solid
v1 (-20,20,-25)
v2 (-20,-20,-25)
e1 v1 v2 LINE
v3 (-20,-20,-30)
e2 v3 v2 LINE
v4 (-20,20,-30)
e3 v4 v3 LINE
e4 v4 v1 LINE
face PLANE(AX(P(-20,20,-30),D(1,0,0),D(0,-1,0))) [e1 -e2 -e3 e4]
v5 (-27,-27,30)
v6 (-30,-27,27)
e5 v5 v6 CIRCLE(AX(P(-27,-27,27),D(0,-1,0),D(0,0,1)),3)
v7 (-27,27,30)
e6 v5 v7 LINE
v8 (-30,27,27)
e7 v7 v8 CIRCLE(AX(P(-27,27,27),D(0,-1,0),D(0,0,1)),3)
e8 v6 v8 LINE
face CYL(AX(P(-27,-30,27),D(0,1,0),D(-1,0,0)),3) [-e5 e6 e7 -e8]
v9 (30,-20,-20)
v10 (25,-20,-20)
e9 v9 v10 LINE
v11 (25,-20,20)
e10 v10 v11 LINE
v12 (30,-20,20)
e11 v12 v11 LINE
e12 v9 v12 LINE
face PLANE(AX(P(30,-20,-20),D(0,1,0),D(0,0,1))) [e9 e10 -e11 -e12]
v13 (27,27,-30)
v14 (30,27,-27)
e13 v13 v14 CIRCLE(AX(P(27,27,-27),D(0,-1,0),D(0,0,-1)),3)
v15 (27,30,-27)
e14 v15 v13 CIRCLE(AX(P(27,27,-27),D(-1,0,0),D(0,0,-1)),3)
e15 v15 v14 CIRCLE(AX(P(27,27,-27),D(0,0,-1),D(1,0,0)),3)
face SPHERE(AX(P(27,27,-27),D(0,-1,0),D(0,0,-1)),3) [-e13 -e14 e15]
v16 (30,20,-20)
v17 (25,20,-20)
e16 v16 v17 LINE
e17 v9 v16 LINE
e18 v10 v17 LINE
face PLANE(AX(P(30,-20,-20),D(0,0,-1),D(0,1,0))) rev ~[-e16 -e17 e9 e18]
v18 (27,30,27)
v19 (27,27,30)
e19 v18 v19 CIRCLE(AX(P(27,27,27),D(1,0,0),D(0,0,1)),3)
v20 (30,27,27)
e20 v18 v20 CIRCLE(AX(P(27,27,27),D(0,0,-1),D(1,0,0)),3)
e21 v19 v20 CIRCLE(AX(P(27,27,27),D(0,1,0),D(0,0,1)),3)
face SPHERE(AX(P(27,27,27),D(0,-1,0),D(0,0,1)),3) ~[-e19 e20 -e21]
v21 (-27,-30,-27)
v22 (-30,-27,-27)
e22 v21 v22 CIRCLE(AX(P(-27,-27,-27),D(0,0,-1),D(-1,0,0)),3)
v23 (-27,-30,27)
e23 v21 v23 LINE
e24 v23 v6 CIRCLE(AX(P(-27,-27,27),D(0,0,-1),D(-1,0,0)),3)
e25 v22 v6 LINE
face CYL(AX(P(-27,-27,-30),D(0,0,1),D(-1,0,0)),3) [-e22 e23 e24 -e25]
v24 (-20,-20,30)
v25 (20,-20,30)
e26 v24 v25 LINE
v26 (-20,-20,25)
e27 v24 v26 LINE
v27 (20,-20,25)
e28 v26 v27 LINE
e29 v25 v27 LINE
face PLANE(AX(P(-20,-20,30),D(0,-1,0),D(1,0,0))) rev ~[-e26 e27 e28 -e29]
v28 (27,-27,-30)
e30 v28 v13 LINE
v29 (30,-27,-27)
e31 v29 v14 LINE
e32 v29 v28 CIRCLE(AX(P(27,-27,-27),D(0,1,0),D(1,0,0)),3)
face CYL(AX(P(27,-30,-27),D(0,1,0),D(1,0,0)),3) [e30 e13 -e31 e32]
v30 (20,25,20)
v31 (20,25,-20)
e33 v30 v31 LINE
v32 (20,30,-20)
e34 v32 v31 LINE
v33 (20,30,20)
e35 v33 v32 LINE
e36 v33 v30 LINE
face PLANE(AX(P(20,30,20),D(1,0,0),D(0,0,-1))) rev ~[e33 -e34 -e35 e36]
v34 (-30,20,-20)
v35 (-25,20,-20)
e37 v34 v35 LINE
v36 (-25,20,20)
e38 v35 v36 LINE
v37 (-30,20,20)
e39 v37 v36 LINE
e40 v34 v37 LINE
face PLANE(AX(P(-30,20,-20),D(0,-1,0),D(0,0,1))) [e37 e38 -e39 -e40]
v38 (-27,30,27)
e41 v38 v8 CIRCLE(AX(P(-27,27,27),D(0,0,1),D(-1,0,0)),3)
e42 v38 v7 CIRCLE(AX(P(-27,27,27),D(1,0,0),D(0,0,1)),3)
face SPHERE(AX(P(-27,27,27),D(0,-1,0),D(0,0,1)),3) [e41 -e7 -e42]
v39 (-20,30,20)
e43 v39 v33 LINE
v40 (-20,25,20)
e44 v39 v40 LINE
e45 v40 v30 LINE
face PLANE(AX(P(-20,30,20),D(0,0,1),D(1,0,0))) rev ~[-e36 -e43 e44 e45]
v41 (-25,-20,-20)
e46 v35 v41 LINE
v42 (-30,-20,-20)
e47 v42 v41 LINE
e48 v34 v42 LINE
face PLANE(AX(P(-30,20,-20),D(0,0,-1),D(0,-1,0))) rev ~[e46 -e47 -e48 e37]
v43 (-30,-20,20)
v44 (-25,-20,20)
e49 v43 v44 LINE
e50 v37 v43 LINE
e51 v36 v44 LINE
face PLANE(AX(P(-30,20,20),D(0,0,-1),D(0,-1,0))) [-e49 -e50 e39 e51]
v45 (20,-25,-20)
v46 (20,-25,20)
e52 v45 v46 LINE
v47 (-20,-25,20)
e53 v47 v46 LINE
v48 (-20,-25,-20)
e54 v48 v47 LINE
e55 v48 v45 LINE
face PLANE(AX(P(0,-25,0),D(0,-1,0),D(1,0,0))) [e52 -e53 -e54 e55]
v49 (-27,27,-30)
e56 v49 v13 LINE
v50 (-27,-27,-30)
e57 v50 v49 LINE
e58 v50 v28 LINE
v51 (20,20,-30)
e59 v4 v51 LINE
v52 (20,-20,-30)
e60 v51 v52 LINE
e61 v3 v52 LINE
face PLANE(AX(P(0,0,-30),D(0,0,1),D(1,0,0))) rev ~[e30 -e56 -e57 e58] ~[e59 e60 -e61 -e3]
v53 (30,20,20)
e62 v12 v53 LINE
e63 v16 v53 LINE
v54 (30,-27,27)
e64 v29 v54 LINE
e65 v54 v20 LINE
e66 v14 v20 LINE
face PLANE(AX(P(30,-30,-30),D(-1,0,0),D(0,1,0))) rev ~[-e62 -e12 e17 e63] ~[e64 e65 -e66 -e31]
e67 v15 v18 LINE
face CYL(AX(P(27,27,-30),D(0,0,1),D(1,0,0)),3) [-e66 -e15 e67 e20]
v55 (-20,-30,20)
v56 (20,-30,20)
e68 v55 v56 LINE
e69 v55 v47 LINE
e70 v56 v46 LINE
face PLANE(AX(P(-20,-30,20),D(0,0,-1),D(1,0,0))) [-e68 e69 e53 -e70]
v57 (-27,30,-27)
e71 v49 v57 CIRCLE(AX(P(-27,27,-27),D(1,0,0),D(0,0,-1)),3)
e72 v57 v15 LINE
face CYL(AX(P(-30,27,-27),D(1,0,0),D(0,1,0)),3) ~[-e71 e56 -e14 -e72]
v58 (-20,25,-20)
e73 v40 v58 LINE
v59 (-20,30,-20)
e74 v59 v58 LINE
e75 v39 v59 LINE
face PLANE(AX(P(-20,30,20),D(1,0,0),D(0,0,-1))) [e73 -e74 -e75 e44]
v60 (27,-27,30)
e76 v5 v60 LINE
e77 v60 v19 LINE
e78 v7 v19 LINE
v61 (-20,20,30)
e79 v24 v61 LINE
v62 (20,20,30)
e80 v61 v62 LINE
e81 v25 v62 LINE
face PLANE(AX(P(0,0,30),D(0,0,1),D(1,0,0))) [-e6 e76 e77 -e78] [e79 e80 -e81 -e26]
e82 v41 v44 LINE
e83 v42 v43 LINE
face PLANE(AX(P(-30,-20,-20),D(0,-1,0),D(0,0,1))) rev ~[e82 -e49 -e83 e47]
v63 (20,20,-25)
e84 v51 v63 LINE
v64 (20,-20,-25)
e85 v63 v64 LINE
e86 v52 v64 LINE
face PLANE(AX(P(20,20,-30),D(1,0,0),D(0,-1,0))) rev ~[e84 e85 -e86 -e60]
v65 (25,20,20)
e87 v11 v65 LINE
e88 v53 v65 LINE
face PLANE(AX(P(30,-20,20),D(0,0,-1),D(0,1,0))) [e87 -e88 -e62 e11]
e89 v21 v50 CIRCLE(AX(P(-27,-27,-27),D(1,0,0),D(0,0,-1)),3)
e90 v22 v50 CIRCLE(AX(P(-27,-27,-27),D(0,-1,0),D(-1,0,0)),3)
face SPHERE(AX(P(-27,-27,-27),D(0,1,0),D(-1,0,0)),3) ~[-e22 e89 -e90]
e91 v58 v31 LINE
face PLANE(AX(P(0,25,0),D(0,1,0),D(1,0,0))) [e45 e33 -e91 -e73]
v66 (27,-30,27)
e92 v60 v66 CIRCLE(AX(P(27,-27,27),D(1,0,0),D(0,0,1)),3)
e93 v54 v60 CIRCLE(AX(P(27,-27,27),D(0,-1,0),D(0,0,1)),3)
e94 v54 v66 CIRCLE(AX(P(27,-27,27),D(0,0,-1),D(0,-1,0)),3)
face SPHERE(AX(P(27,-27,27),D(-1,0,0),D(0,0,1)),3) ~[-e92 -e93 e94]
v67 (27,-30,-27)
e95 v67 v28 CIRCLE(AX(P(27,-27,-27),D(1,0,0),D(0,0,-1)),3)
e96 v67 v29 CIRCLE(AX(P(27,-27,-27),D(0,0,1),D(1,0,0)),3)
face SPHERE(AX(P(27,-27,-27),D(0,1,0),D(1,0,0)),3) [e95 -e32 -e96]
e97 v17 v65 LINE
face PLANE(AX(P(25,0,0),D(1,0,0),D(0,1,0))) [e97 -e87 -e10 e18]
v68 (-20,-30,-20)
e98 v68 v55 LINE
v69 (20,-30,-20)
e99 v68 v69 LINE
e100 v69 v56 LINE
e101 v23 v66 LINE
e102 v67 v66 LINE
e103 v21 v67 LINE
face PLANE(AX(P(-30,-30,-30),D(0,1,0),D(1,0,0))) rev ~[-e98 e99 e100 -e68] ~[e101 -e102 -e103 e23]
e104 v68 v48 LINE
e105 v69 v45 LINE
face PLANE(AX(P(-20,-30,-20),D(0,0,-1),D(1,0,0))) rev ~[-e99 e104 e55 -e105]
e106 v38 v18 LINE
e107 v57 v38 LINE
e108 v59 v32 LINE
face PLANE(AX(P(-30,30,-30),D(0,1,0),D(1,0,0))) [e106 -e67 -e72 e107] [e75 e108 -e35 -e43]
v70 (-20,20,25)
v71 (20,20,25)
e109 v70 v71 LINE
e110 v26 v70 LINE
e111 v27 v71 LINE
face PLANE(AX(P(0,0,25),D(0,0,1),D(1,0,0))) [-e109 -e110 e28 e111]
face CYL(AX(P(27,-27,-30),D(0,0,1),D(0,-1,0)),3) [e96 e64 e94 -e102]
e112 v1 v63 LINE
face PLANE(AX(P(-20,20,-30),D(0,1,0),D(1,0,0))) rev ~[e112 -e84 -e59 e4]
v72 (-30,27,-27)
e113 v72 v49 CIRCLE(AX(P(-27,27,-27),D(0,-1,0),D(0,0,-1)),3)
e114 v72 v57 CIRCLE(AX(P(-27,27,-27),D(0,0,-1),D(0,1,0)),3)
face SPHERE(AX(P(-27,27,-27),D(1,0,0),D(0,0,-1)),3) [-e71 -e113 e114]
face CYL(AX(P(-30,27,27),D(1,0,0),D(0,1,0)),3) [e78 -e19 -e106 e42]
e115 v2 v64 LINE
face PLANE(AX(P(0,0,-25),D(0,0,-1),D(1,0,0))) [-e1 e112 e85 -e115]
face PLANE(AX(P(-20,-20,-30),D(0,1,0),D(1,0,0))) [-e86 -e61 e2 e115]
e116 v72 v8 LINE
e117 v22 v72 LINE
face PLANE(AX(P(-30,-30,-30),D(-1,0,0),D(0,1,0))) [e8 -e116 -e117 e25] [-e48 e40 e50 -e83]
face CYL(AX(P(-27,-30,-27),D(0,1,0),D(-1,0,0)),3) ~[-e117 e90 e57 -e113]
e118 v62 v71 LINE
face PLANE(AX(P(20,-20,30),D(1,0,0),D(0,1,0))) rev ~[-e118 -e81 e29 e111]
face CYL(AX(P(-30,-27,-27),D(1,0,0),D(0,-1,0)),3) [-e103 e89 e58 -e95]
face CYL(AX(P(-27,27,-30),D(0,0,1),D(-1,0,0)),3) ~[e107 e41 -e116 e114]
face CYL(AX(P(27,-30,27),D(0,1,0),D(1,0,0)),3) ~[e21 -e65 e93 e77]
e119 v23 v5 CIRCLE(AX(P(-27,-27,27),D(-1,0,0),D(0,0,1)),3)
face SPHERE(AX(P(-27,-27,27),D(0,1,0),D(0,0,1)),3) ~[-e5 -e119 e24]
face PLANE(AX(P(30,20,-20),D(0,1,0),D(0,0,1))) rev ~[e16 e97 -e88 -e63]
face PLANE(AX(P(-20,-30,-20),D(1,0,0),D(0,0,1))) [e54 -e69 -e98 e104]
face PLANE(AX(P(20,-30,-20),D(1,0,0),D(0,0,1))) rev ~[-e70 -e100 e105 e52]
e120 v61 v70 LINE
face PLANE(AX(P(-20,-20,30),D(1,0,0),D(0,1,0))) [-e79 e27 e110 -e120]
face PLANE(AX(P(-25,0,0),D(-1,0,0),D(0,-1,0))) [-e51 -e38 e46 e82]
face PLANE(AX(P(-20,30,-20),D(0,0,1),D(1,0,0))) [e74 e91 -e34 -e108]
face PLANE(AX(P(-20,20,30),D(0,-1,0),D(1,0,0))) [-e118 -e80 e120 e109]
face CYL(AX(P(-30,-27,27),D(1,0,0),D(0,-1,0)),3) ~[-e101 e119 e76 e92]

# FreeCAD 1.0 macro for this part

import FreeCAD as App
import Part
import Sketcher
Q = App.Units.Quantity

doc = App.newDocument("Part")
body = doc.addObject("PartDesign::Body", "Body")

# Sketch on XY plane
sketch1 = body.newObject("Sketcher::SketchObject", "Sketch")
sketch1.AttachmentSupport = (doc.getObject("XY_Plane"), [""])
sketch1.MapMode = "FlatFace"
sketch1.addGeometry(Part.LineSegment(App.Vector(-30, 30, 0), App.Vector(-30, -30, 0)), False)
sketch1.addGeometry(Part.LineSegment(App.Vector(-30, -30, 0), App.Vector(30, -30, 0)), False)
sketch1.addGeometry(Part.LineSegment(App.Vector(30, -30, 0), App.Vector(30, 30, 0)), False)
sketch1.addGeometry(Part.LineSegment(App.Vector(30, 30, 0), App.Vector(-30, 30, 0)), False)
sketch1.addConstraint(Sketcher.Constraint("Coincident", 0, 2, 1, 1))
sketch1.addConstraint(Sketcher.Constraint("Coincident", 1, 2, 2, 1))
sketch1.addConstraint(Sketcher.Constraint("Coincident", 2, 2, 3, 1))
sketch1.addConstraint(Sketcher.Constraint("Coincident", 3, 2, 0, 1))
sketch1.addConstraint(Sketcher.Constraint("Vertical", 0))
sketch1.addConstraint(Sketcher.Constraint("Horizontal", 1))
sketch1.addConstraint(Sketcher.Constraint("Vertical", 2))
sketch1.addConstraint(Sketcher.Constraint("Horizontal", 3))
sketch1.addConstraint(Sketcher.Constraint("Symmetric", 0, 2, 2, 2, -1, 1))
sketch1.addConstraint(Sketcher.Constraint("Equal", 3, 0))
sketch1.addConstraint(Sketcher.Constraint("DistanceX", 1, 1, 1, 2, Q("60 mm")))
pad1 = body.newObject("PartDesign::Pad", "Pad")
pad1.Profile = sketch1
pad1.Type = "TwoLengths"
pad1.Length = 30
pad1.Length2 = 30
doc.recompute()

fillet = body.newObject("PartDesign::Fillet", "Fillet")
fillet.Base = (pad1, ["Edge1"])
fillet.UseAllEdges = True
fillet.Radius = 3

# Sketch on XY plane
sketch2 = body.newObject("Sketcher::SketchObject", "Sketch001")
sketch2.AttachmentSupport = (doc.getObject("XY_Plane"), [""])
sketch2.MapMode = "FlatFace"
sketch2.AttachmentOffset = App.Placement(App.Vector(0, 0, 30), App.Rotation())
sketch2.addGeometry(Part.LineSegment(App.Vector(-20, 20, 0), App.Vector(-20, -20, 0)), False)
sketch2.addGeometry(Part.LineSegment(App.Vector(-20, -20, 0), App.Vector(20, -20, 0)), False)
sketch2.addGeometry(Part.LineSegment(App.Vector(20, -20, 0), App.Vector(20, 20, 0)), False)
sketch2.addGeometry(Part.LineSegment(App.Vector(20, 20, 0), App.Vector(-20, 20, 0)), False)
sketch2.addConstraint(Sketcher.Constraint("Coincident", 0, 2, 1, 1))
sketch2.addConstraint(Sketcher.Constraint("Coincident", 1, 2, 2, 1))
sketch2.addConstraint(Sketcher.Constraint("Coincident", 2, 2, 3, 1))
sketch2.addConstraint(Sketcher.Constraint("Coincident", 3, 2, 0, 1))
sketch2.addConstraint(Sketcher.Constraint("Vertical", 0))
sketch2.addConstraint(Sketcher.Constraint("Horizontal", 1))
sketch2.addConstraint(Sketcher.Constraint("Vertical", 2))
sketch2.addConstraint(Sketcher.Constraint("Horizontal", 3))
sketch2.addConstraint(Sketcher.Constraint("Symmetric", 0, 2, 2, 2, -1, 1))
sketch2.addConstraint(Sketcher.Constraint("Equal", 3, 0))
sketch2.addConstraint(Sketcher.Constraint("DistanceX", 1, 1, 1, 2, Q("40 mm")))
pocket1 = body.newObject("PartDesign::Pocket", "Pocket")
pocket1.Profile = sketch2
pocket1.Length = 5
doc.recompute()

polarpattern = body.newObject("PartDesign::PolarPattern", "PolarPattern")
polarpattern.Originals = [pocket1]
polarpattern.Axis = (doc.getObject("X_Axis"), [""])
polarpattern.Angle = 360
polarpattern.Occurrences = 4
body.Tip = polarpattern

# Sketch on YZ plane
sketch3 = body.newObject("Sketcher::SketchObject", "Sketch002")
sketch3.AttachmentSupport = (doc.getObject("YZ_Plane"), [""])
sketch3.MapMode = "FlatFace"
sketch3.AttachmentOffset = App.Placement(App.Vector(0, 0, 30), App.Rotation())
sketch3.addGeometry(Part.LineSegment(App.Vector(-20, 20, 0), App.Vector(-20, -20, 0)), False)
sketch3.addGeometry(Part.LineSegment(App.Vector(-20, -20, 0), App.Vector(20, -20, 0)), False)
sketch3.addGeometry(Part.LineSegment(App.Vector(20, -20, 0), App.Vector(20, 20, 0)), False)
sketch3.addGeometry(Part.LineSegment(App.Vector(20, 20, 0), App.Vector(-20, 20, 0)), False)
sketch3.addConstraint(Sketcher.Constraint("Coincident", 0, 2, 1, 1))
sketch3.addConstraint(Sketcher.Constraint("Coincident", 1, 2, 2, 1))
sketch3.addConstraint(Sketcher.Constraint("Coincident", 2, 2, 3, 1))
sketch3.addConstraint(Sketcher.Constraint("Coincident", 3, 2, 0, 1))
sketch3.addConstraint(Sketcher.Constraint("Vertical", 0))
sketch3.addConstraint(Sketcher.Constraint("Horizontal", 1))
sketch3.addConstraint(Sketcher.Constraint("Vertical", 2))
sketch3.addConstraint(Sketcher.Constraint("Horizontal", 3))
sketch3.addConstraint(Sketcher.Constraint("Symmetric", 0, 2, 2, 2, -1, 1))
sketch3.addConstraint(Sketcher.Constraint("Equal", 3, 0))
sketch3.addConstraint(Sketcher.Constraint("DistanceX", 1, 1, 1, 2, Q("40 mm")))
pocket2 = body.newObject("PartDesign::Pocket", "Pocket001")
pocket2.Profile = sketch3
pocket2.Length = 5

# Sketch on XZ plane
sketch4 = body.newObject("Sketcher::SketchObject", "Sketch003")
sketch4.AttachmentSupport = (doc.getObject("XZ_Plane"), [""])
sketch4.MapMode = "FlatFace"
sketch4.AttachmentOffset = App.Placement(App.Vector(0, 0, -30), App.Rotation())
sketch4.addGeometry(Part.LineSegment(App.Vector(20, 20, 0), App.Vector(20, -20, 0)), False)
sketch4.addGeometry(Part.LineSegment(App.Vector(20, -20, 0), App.Vector(-20, -20, 0)), False)
sketch4.addGeometry(Part.LineSegment(App.Vector(-20, -20, 0), App.Vector(-20, 20, 0)), False)
sketch4.addGeometry(Part.LineSegment(App.Vector(-20, 20, 0), App.Vector(20, 20, 0)), False)
sketch4.addConstraint(Sketcher.Constraint("Coincident", 0, 2, 1, 1))
sketch4.addConstraint(Sketcher.Constraint("Coincident", 1, 2, 2, 1))
sketch4.addConstraint(Sketcher.Constraint("Coincident", 2, 2, 3, 1))
sketch4.addConstraint(Sketcher.Constraint("Coincident", 3, 2, 0, 1))
sketch4.addConstraint(Sketcher.Constraint("Vertical", 0))
sketch4.addConstraint(Sketcher.Constraint("Horizontal", 1))
sketch4.addConstraint(Sketcher.Constraint("Vertical", 2))
sketch4.addConstraint(Sketcher.Constraint("Horizontal", 3))
sketch4.addConstraint(Sketcher.Constraint("Symmetric", 0, 2, 2, 2, -1, 1))
sketch4.addConstraint(Sketcher.Constraint("Equal", 3, 0))
sketch4.addConstraint(Sketcher.Constraint("DistanceX", 1, 2, 1, 1, Q("40 mm")))
pocket3 = body.newObject("PartDesign::Pocket", "Pocket002")
pocket3.Profile = sketch4
pocket3.Length = 5
pocket3.Reversed = True

# Sketch on YZ plane
sketch5 = body.newObject("Sketcher::SketchObject", "Sketch004")
sketch5.AttachmentSupport = (doc.getObject("YZ_Plane"), [""])
sketch5.MapMode = "FlatFace"
sketch5.AttachmentOffset = App.Placement(App.Vector(0, 0, -30), App.Rotation())
sketch5.addGeometry(Part.LineSegment(App.Vector(20, 20, 0), App.Vector(20, -20, 0)), False)
sketch5.addGeometry(Part.LineSegment(App.Vector(20, -20, 0), App.Vector(-20, -20, 0)), False)
sketch5.addGeometry(Part.LineSegment(App.Vector(-20, -20, 0), App.Vector(-20, 20, 0)), False)
sketch5.addGeometry(Part.LineSegment(App.Vector(-20, 20, 0), App.Vector(20, 20, 0)), False)
sketch5.addConstraint(Sketcher.Constraint("Coincident", 0, 2, 1, 1))
sketch5.addConstraint(Sketcher.Constraint("Coincident", 1, 2, 2, 1))
sketch5.addConstraint(Sketcher.Constraint("Coincident", 2, 2, 3, 1))
sketch5.addConstraint(Sketcher.Constraint("Coincident", 3, 2, 0, 1))
sketch5.addConstraint(Sketcher.Constraint("Vertical", 0))
sketch5.addConstraint(Sketcher.Constraint("Horizontal", 1))
sketch5.addConstraint(Sketcher.Constraint("Vertical", 2))
sketch5.addConstraint(Sketcher.Constraint("Horizontal", 3))
sketch5.addConstraint(Sketcher.Constraint("Symmetric", 0, 2, 2, 2, -1, 1))
sketch5.addConstraint(Sketcher.Constraint("Equal", 3, 0))
sketch5.addConstraint(Sketcher.Constraint("DistanceX", 1, 2, 1, 1, Q("40 mm")))
pocket4 = body.newObject("PartDesign::Pocket", "Pocket003")
pocket4.Profile = sketch5
pocket4.Length = 5
pocket4.Reversed = True

# Sketch on XY plane
sketch6 = body.newObject("Sketcher::SketchObject", "Sketch005")
sketch6.AttachmentSupport = (doc.getObject("XY_Plane"), [""])
sketch6.MapMode = "FlatFace"
sketch6.AttachmentOffset = App.Placement(App.Vector(0, 0, -30), App.Rotation())
sketch6.addGeometry(Part.LineSegment(App.Vector(20, -20, 0), App.Vector(-20, -20, 0)), False)
sketch6.addGeometry(Part.LineSegment(App.Vector(-20, -20, 0), App.Vector(-20, 20, 0)), False)
sketch6.addGeometry(Part.LineSegment(App.Vector(-20, 20, 0), App.Vector(20, 20, 0)), False)
sketch6.addGeometry(Part.LineSegment(App.Vector(20, 20, 0), App.Vector(20, -20, 0)), False)
sketch6.addConstraint(Sketcher.Constraint("Coincident", 0, 2, 1, 1))
sketch6.addConstraint(Sketcher.Constraint("Coincident", 1, 2, 2, 1))
sketch6.addConstraint(Sketcher.Constraint("Coincident", 2, 2, 3, 1))
sketch6.addConstraint(Sketcher.Constraint("Coincident", 3, 2, 0, 1))
sketch6.addConstraint(Sketcher.Constraint("Horizontal", 0))
sketch6.addConstraint(Sketcher.Constraint("Vertical", 1))
sketch6.addConstraint(Sketcher.Constraint("Horizontal", 2))
sketch6.addConstraint(Sketcher.Constraint("Vertical", 3))
sketch6.addConstraint(Sketcher.Constraint("Symmetric", 0, 2, 2, 2, -1, 1))
sketch6.addConstraint(Sketcher.Constraint("Equal", 2, 1))
sketch6.addConstraint(Sketcher.Constraint("DistanceX", 0, 2, 0, 1, Q("40 mm")))
pocket5 = body.newObject("PartDesign::Pocket", "Pocket004")
pocket5.Profile = sketch6
pocket5.Length = 5
pocket5.Reversed = True

# Sketch on XY plane
sketch7 = body.newObject("Sketcher::SketchObject", "Sketch006")
sketch7.AttachmentSupport = (doc.getObject("XY_Plane"), [""])
sketch7.MapMode = "FlatFace"
sketch7.AttachmentOffset = App.Placement(App.Vector(0, 0, -30), App.Rotation())
sketch7.addGeometry(Part.LineSegment(App.Vector(20, 20, 0), App.Vector(20, -20, 0)), False)
sketch7.addGeometry(Part.LineSegment(App.Vector(20, -20, 0), App.Vector(-20, -20, 0)), False)
sketch7.addGeometry(Part.LineSegment(App.Vector(-20, -20, 0), App.Vector(-20, 20, 0)), False)
sketch7.addGeometry(Part.LineSegment(App.Vector(-20, 20, 0), App.Vector(20, 20, 0)), False)
sketch7.addConstraint(Sketcher.Constraint("Coincident", 0, 2, 1, 1))
sketch7.addConstraint(Sketcher.Constraint("Coincident", 1, 2, 2, 1))
sketch7.addConstraint(Sketcher.Constraint("Coincident", 2, 2, 3, 1))
sketch7.addConstraint(Sketcher.Constraint("Coincident", 3, 2, 0, 1))
sketch7.addConstraint(Sketcher.Constraint("Vertical", 0))
sketch7.addConstraint(Sketcher.Constraint("Horizontal", 1))
sketch7.addConstraint(Sketcher.Constraint("Vertical", 2))
sketch7.addConstraint(Sketcher.Constraint("Horizontal", 3))
sketch7.addConstraint(Sketcher.Constraint("Symmetric", 0, 2, 2, 2, -1, 1))
sketch7.addConstraint(Sketcher.Constraint("Equal", 3, 0))
sketch7.addConstraint(Sketcher.Constraint("DistanceX", 1, 2, 1, 1, Q("40 mm")))
pocket6 = body.newObject("PartDesign::Pocket", "Pocket005")
pocket6.Profile = sketch7
pocket6.Length = 5
pocket6.Reversed = True

# Sketch on XY plane
sketch8 = body.newObject("Sketcher::SketchObject", "Sketch007")
sketch8.AttachmentSupport = (doc.getObject("XY_Plane"), [""])
sketch8.MapMode = "FlatFace"
sketch8.AttachmentOffset = App.Placement(App.Vector(0, 0, -30), App.Rotation())
sketch8.addGeometry(Part.LineSegment(App.Vector(-20, 20, 0), App.Vector(20, 20, 0)), False)
sketch8.addGeometry(Part.LineSegment(App.Vector(20, 20, 0), App.Vector(20, -20, 0)), False)
sketch8.addGeometry(Part.LineSegment(App.Vector(20, -20, 0), App.Vector(-20, -20, 0)), False)
sketch8.addGeometry(Part.LineSegment(App.Vector(-20, -20, 0), App.Vector(-20, 20, 0)), False)
sketch8.addConstraint(Sketcher.Constraint("Coincident", 0, 2, 1, 1))
sketch8.addConstraint(Sketcher.Constraint("Coincident", 1, 2, 2, 1))
sketch8.addConstraint(Sketcher.Constraint("Coincident", 2, 2, 3, 1))
sketch8.addConstraint(Sketcher.Constraint("Coincident", 3, 2, 0, 1))
sketch8.addConstraint(Sketcher.Constraint("Horizontal", 0))
sketch8.addConstraint(Sketcher.Constraint("Vertical", 1))
sketch8.addConstraint(Sketcher.Constraint("Horizontal", 2))
sketch8.addConstraint(Sketcher.Constraint("Vertical", 3))
sketch8.addConstraint(Sketcher.Constraint("Symmetric", 0, 2, 2, 2, -1, 1))
sketch8.addConstraint(Sketcher.Constraint("Equal", 2, 1))
sketch8.addConstraint(Sketcher.Constraint("DistanceX", 0, 1, 0, 2, Q("40 mm")))
pocket7 = body.newObject("PartDesign::Pocket", "Pocket006")
pocket7.Profile = sketch8
pocket7.Length = 5
pocket7.Reversed = True

# Sketch on YZ plane
sketch9 = body.newObject("Sketcher::SketchObject", "Sketch008")
sketch9.AttachmentSupport = (doc.getObject("YZ_Plane"), [""])
sketch9.MapMode = "FlatFace"
sketch9.AttachmentOffset = App.Placement(App.Vector(0, 0, -30), App.Rotation())
sketch9.addGeometry(Part.LineSegment(App.Vector(-20, -20, 0), App.Vector(-20, 20, 0)), False)
sketch9.addGeometry(Part.LineSegment(App.Vector(-20, 20, 0), App.Vector(20, 20, 0)), False)
sketch9.addGeometry(Part.LineSegment(App.Vector(20, 20, 0), App.Vector(20, -20, 0)), False)
sketch9.addGeometry(Part.LineSegment(App.Vector(20, -20, 0), App.Vector(-20, -20, 0)), False)
sketch9.addConstraint(Sketcher.Constraint("Coincident", 0, 2, 1, 1))
sketch9.addConstraint(Sketcher.Constraint("Coincident", 1, 2, 2, 1))
sketch9.addConstraint(Sketcher.Constraint("Coincident", 2, 2, 3, 1))
sketch9.addConstraint(Sketcher.Constraint("Coincident", 3, 2, 0, 1))
sketch9.addConstraint(Sketcher.Constraint("Vertical", 0))
sketch9.addConstraint(Sketcher.Constraint("Horizontal", 1))
sketch9.addConstraint(Sketcher.Constraint("Vertical", 2))
sketch9.addConstraint(Sketcher.Constraint("Horizontal", 3))
sketch9.addConstraint(Sketcher.Constraint("Symmetric", 0, 2, 2, 2, -1, 1))
sketch9.addConstraint(Sketcher.Constraint("Equal", 3, 0))
sketch9.addConstraint(Sketcher.Constraint("DistanceX", 1, 1, 1, 2, Q("40 mm")))
pocket8 = body.newObject("PartDesign::Pocket", "Pocket007")
pocket8.Profile = sketch9
pocket8.Length = 5
pocket8.Reversed = True

# Sketch on XZ plane
sketch10 = body.newObject("Sketcher::SketchObject", "Sketch009")
sketch10.AttachmentSupport = (doc.getObject("XZ_Plane"), [""])
sketch10.MapMode = "FlatFace"
sketch10.AttachmentOffset = App.Placement(App.Vector(0, 0, 30), App.Rotation())
sketch10.addGeometry(Part.LineSegment(App.Vector(20, -20, 0), App.Vector(20, 20, 0)), False)
sketch10.addGeometry(Part.LineSegment(App.Vector(20, 20, 0), App.Vector(-20, 20, 0)), False)
sketch10.addGeometry(Part.LineSegment(App.Vector(-20, 20, 0), App.Vector(-20, -20, 0)), False)
sketch10.addGeometry(Part.LineSegment(App.Vector(-20, -20, 0), App.Vector(20, -20, 0)), False)
sketch10.addConstraint(Sketcher.Constraint("Coincident", 0, 2, 1, 1))
sketch10.addConstraint(Sketcher.Constraint("Coincident", 1, 2, 2, 1))
sketch10.addConstraint(Sketcher.Constraint("Coincident", 2, 2, 3, 1))
sketch10.addConstraint(Sketcher.Constraint("Coincident", 3, 2, 0, 1))
sketch10.addConstraint(Sketcher.Constraint("Vertical", 0))
sketch10.addConstraint(Sketcher.Constraint("Horizontal", 1))
sketch10.addConstraint(Sketcher.Constraint("Vertical", 2))
sketch10.addConstraint(Sketcher.Constraint("Horizontal", 3))
sketch10.addConstraint(Sketcher.Constraint("Symmetric", 0, 2, 2, 2, -1, 1))
sketch10.addConstraint(Sketcher.Constraint("Equal", 3, 0))
sketch10.addConstraint(Sketcher.Constraint("DistanceX", 1, 2, 1, 1, Q("40 mm")))
pocket9 = body.newObject("PartDesign::Pocket", "Pocket008")
pocket9.Profile = sketch10
pocket9.Length = 5

# Sketch on YZ plane
sketch11 = body.newObject("Sketcher::SketchObject", "Sketch010")
sketch11.AttachmentSupport = (doc.getObject("YZ_Plane"), [""])
sketch11.MapMode = "FlatFace"
sketch11.AttachmentOffset = App.Placement(App.Vector(0, 0, 30), App.Rotation())
sketch11.addGeometry(Part.LineSegment(App.Vector(20, -20, 0), App.Vector(20, 20, 0)), False)
sketch11.addGeometry(Part.LineSegment(App.Vector(20, 20, 0), App.Vector(-20, 20, 0)), False)
sketch11.addGeometry(Part.LineSegment(App.Vector(-20, 20, 0), App.Vector(-20, -20, 0)), False)
sketch11.addGeometry(Part.LineSegment(App.Vector(-20, -20, 0), App.Vector(20, -20, 0)), False)
sketch11.addConstraint(Sketcher.Constraint("Coincident", 0, 2, 1, 1))
sketch11.addConstraint(Sketcher.Constraint("Coincident", 1, 2, 2, 1))
sketch11.addConstraint(Sketcher.Constraint("Coincident", 2, 2, 3, 1))
sketch11.addConstraint(Sketcher.Constraint("Coincident", 3, 2, 0, 1))
sketch11.addConstraint(Sketcher.Constraint("Vertical", 0))
sketch11.addConstraint(Sketcher.Constraint("Horizontal", 1))
sketch11.addConstraint(Sketcher.Constraint("Vertical", 2))
sketch11.addConstraint(Sketcher.Constraint("Horizontal", 3))
sketch11.addConstraint(Sketcher.Constraint("Symmetric", 0, 2, 2, 2, -1, 1))
sketch11.addConstraint(Sketcher.Constraint("Equal", 3, 0))
sketch11.addConstraint(Sketcher.Constraint("DistanceX", 1, 2, 1, 1, Q("40 mm")))
pocket10 = body.newObject("PartDesign::Pocket", "Pocket009")
pocket10.Profile = sketch11
pocket10.Length = 5

# Sketch on XY plane
sketch12 = body.newObject("Sketcher::SketchObject", "Sketch011")
sketch12.AttachmentSupport = (doc.getObject("XY_Plane"), [""])
sketch12.MapMode = "FlatFace"
sketch12.AttachmentOffset = App.Placement(App.Vector(0, 0, 30), App.Rotation())
sketch12.addGeometry(Part.LineSegment(App.Vector(-20, -20, 0), App.Vector(20, -20, 0)), False)
sketch12.addGeometry(Part.LineSegment(App.Vector(20, -20, 0), App.Vector(20, 20, 0)), False)
sketch12.addGeometry(Part.LineSegment(App.Vector(20, 20, 0), App.Vector(-20, 20, 0)), False)
sketch12.addGeometry(Part.LineSegment(App.Vector(-20, 20, 0), App.Vector(-20, -20, 0)), False)
sketch12.addConstraint(Sketcher.Constraint("Coincident", 0, 2, 1, 1))
sketch12.addConstraint(Sketcher.Constraint("Coincident", 1, 2, 2, 1))
sketch12.addConstraint(Sketcher.Constraint("Coincident", 2, 2, 3, 1))
sketch12.addConstraint(Sketcher.Constraint("Coincident", 3, 2, 0, 1))
sketch12.addConstraint(Sketcher.Constraint("Horizontal", 0))
sketch12.addConstraint(Sketcher.Constraint("Vertical", 1))
sketch12.addConstraint(Sketcher.Constraint("Horizontal", 2))
sketch12.addConstraint(Sketcher.Constraint("Vertical", 3))
sketch12.addConstraint(Sketcher.Constraint("Symmetric", 0, 2, 2, 2, -1, 1))
sketch12.addConstraint(Sketcher.Constraint("Equal", 2, 1))
sketch12.addConstraint(Sketcher.Constraint("DistanceX", 0, 1, 0, 2, Q("40 mm")))
pocket11 = body.newObject("PartDesign::Pocket", "Pocket010")
pocket11.Profile = sketch12
pocket11.Length = 5

# Sketch on XY plane
sketch13 = body.newObject("Sketcher::SketchObject", "Sketch012")
sketch13.AttachmentSupport = (doc.getObject("XY_Plane"), [""])
sketch13.MapMode = "FlatFace"
sketch13.AttachmentOffset = App.Placement(App.Vector(0, 0, 30), App.Rotation())
sketch13.addGeometry(Part.LineSegment(App.Vector(20, -20, 0), App.Vector(20, 20, 0)), False)
sketch13.addGeometry(Part.LineSegment(App.Vector(20, 20, 0), App.Vector(-20, 20, 0)), False)
sketch13.addGeometry(Part.LineSegment(App.Vector(-20, 20, 0), App.Vector(-20, -20, 0)), False)
sketch13.addGeometry(Part.LineSegment(App.Vector(-20, -20, 0), App.Vector(20, -20, 0)), False)
sketch13.addConstraint(Sketcher.Constraint("Coincident", 0, 2, 1, 1))
sketch13.addConstraint(Sketcher.Constraint("Coincident", 1, 2, 2, 1))
sketch13.addConstraint(Sketcher.Constraint("Coincident", 2, 2, 3, 1))
sketch13.addConstraint(Sketcher.Constraint("Coincident", 3, 2, 0, 1))
sketch13.addConstraint(Sketcher.Constraint("Vertical", 0))
sketch13.addConstraint(Sketcher.Constraint("Horizontal", 1))
sketch13.addConstraint(Sketcher.Constraint("Vertical", 2))
sketch13.addConstraint(Sketcher.Constraint("Horizontal", 3))
sketch13.addConstraint(Sketcher.Constraint("Symmetric", 0, 2, 2, 2, -1, 1))
sketch13.addConstraint(Sketcher.Constraint("Equal", 3, 0))
sketch13.addConstraint(Sketcher.Constraint("DistanceX", 1, 2, 1, 1, Q("40 mm")))
pocket12 = body.newObject("PartDesign::Pocket", "Pocket011")
pocket12.Profile = sketch13
pocket12.Length = 5

# Sketch on XY plane
sketch14 = body.newObject("Sketcher::SketchObject", "Sketch013")
sketch14.AttachmentSupport = (doc.getObject("XY_Plane"), [""])
sketch14.MapMode = "FlatFace"
sketch14.AttachmentOffset = App.Placement(App.Vector(0, 0, 30), App.Rotation())
sketch14.addGeometry(Part.LineSegment(App.Vector(20, 20, 0), App.Vector(-20, 20, 0)), False)
sketch14.addGeometry(Part.LineSegment(App.Vector(-20, 20, 0), App.Vector(-20, -20, 0)), False)
sketch14.addGeometry(Part.LineSegment(App.Vector(-20, -20, 0), App.Vector(20, -20, 0)), False)
sketch14.addGeometry(Part.LineSegment(App.Vector(20, -20, 0), App.Vector(20, 20, 0)), False)
sketch14.addConstraint(Sketcher.Constraint("Coincident", 0, 2, 1, 1))
sketch14.addConstraint(Sketcher.Constraint("Coincident", 1, 2, 2, 1))
sketch14.addConstraint(Sketcher.Constraint("Coincident", 2, 2, 3, 1))
sketch14.addConstraint(Sketcher.Constraint("Coincident", 3, 2, 0, 1))
sketch14.addConstraint(Sketcher.Constraint("Horizontal", 0))
sketch14.addConstraint(Sketcher.Constraint("Vertical", 1))
sketch14.addConstraint(Sketcher.Constraint("Horizontal", 2))
sketch14.addConstraint(Sketcher.Constraint("Vertical", 3))
sketch14.addConstraint(Sketcher.Constraint("Symmetric", 0, 2, 2, 2, -1, 1))
sketch14.addConstraint(Sketcher.Constraint("Equal", 2, 1))
sketch14.addConstraint(Sketcher.Constraint("DistanceX", 0, 2, 0, 1, Q("40 mm")))
pocket13 = body.newObject("PartDesign::Pocket", "Pocket012")
pocket13.Profile = sketch14
pocket13.Length = 5

doc.recompute()
